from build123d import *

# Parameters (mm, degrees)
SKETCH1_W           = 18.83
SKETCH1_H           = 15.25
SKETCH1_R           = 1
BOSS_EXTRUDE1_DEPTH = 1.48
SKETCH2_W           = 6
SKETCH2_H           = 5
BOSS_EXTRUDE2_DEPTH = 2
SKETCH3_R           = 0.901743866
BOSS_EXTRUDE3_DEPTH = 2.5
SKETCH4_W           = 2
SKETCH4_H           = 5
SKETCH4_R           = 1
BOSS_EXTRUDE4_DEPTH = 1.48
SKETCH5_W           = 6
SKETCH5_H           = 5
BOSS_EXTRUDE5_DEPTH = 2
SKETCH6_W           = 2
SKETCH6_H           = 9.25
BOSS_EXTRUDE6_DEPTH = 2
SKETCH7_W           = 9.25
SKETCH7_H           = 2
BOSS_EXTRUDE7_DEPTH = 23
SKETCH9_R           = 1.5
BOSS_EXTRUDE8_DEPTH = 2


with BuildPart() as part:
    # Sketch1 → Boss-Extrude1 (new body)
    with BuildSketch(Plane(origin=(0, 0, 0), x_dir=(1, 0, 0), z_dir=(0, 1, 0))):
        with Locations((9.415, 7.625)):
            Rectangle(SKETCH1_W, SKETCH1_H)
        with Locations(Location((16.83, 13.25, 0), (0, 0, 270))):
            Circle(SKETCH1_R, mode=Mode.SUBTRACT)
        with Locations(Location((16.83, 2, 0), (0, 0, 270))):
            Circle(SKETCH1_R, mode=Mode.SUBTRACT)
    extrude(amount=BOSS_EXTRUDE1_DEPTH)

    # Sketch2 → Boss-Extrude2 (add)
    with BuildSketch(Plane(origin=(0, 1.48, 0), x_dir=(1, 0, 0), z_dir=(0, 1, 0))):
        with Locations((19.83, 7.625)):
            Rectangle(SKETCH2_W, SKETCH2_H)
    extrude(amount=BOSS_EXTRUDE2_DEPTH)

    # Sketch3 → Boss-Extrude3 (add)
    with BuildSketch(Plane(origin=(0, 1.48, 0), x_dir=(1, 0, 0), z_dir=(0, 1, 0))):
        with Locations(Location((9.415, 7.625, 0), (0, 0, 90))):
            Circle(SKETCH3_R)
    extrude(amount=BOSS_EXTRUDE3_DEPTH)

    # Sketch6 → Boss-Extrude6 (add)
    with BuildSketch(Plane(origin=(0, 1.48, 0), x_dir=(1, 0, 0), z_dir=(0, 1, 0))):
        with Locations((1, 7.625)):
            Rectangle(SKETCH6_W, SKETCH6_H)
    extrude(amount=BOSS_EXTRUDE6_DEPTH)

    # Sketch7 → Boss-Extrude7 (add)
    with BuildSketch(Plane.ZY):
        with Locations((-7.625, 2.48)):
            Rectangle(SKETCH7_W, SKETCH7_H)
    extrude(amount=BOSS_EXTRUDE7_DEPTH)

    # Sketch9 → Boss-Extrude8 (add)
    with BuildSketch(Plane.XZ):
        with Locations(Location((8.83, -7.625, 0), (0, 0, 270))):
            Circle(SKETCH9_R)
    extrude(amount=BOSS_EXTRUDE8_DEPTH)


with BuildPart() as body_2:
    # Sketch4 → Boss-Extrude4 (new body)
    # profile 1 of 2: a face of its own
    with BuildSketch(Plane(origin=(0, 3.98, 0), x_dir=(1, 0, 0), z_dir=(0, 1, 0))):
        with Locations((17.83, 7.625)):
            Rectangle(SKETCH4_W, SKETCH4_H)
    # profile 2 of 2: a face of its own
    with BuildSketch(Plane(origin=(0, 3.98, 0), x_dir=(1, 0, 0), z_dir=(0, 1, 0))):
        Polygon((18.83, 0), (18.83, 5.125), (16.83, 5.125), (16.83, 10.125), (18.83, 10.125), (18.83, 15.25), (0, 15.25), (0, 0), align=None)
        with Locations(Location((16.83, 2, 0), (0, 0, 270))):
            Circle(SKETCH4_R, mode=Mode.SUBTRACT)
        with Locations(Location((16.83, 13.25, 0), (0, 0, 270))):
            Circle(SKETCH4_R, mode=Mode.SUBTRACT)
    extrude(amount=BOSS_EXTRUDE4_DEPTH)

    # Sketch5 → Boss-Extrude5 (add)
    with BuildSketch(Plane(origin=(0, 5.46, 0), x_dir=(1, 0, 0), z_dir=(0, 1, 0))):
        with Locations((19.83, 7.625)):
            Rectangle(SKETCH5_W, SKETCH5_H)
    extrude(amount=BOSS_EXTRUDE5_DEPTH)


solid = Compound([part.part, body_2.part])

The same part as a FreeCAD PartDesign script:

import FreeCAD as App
import Part
import Sketcher
from FreeCAD import Vector
Q = App.Units.Quantity

doc = App.newDocument("Part")
params = doc.addObject("Spreadsheet::Sheet", "Params")
for row, (alias, value) in enumerate([
    ("sketch1_diameter", "2 mm"),
    ("sketch1_width", "18.83 mm"),
    ("sketch1_height", "15.25 mm"),
    ("pad1_length", "1.48 mm"),
    ("sketch2_width", "6 mm"),
    ("sketch2_height", "5 mm"),
    ("pad2_length", "2 mm"),
    ("pad3_length", "2.5 mm"),
    ("sketch4_width", "2 mm"),
    ("sketch4_height", "9.25 mm"),
    ("pad4_length", "2 mm"),
    ("sketch5_width", "2 mm"),
    ("sketch5_height", "9.25 mm"),
    ("pad5_length", "23 mm"),
    ("sketch6_diameter", "3 mm"),
    ("pad6_length", "2 mm"),
    ("sketch7_diameter", "2 mm"),
    ("sketch7_width", "18.83 mm"),
    ("sketch7_height", "15.25 mm"),
    ("pad7_length", "1.48 mm"),
    ("sketch8_width", "6 mm"),
    ("sketch8_height", "5 mm"),
    ("pad8_length", "2 mm"),
], start=1):
    params.set(f"A{row}", alias)
    params.set(f"B{row}", "=" + value)
    params.setAlias(f"B{row}", alias)

body = doc.addObject("PartDesign::Body", "Body")

sketch1 = body.newObject("Sketcher::SketchObject", "Sketch")
sketch1.AttachmentSupport = (doc.getObject("XZ_Plane"), [""])
sketch1.MapMode = "FlatFace"
sketch1.addGeometry([
    Part.LineSegment(Vector(0, -15.2, 0), Vector(0, 0, 0)),
    Part.LineSegment(Vector(0, 0, 0), Vector(18.8, 0, 0)),
    Part.LineSegment(Vector(18.8, 0, 0), Vector(18.8, -15.2, 0)),
    Part.LineSegment(Vector(18.8, -15.2, 0), Vector(0, -15.2, 0)),
    Part.Circle(Vector(16.8, -2, 0), Vector(0, 0, 1), 1),
    Part.Circle(Vector(16.8, -13.2, 0), Vector(0, 0, 1), 1),
], False)
sketch1.addConstraint([
    Sketcher.Constraint("Coincident", 0, 2, 1, 1),
    Sketcher.Constraint("Coincident", 1, 2, 2, 1),
    Sketcher.Constraint("Coincident", 2, 2, 3, 1),
    Sketcher.Constraint("Coincident", 3, 2, 0, 1),
    Sketcher.Constraint("Vertical", 0),
    Sketcher.Constraint("Horizontal", 1),
    Sketcher.Constraint("Vertical", 2),
    Sketcher.Constraint("Horizontal", 3),
    Sketcher.Constraint("Coincident", 0, 2, -1, 1),
    Sketcher.Constraint("Equal", 4, 5),
    Sketcher.Constraint("Vertical", 4, 3, 5, 3),
    Sketcher.Constraint("Diameter", 4, Q("2 mm")),
    Sketcher.Constraint("DistanceY", 4, 3, -1, 1, Q("2 mm")),
    Sketcher.Constraint("DistanceX", 4, 3, 1, 2, Q("2 mm")),
    Sketcher.Constraint("DistanceY", 2, 2, 5, 3, Q("2 mm")),
    Sketcher.Constraint("DistanceX", 1, 1, 1, 2, Q("18.83 mm")),
    Sketcher.Constraint("DistanceY", 0, 1, 0, 2, Q("15.25 mm")),
])
sketch1.setExpression("Constraints[11]", "Params.sketch1_diameter")
sketch1.setExpression("Constraints[15]", "Params.sketch1_width")
sketch1.setExpression("Constraints[16]", "Params.sketch1_height")
pad1 = body.newObject("PartDesign::Pad", "Pad")
pad1.Profile = sketch1
pad1.setExpression("Length", "Params.pad1_length")
pad1.Reversed = True

sketch2 = body.newObject("Sketcher::SketchObject", "Sketch001")
sketch2.AttachmentSupport = (doc.getObject("XZ_Plane"), [""])
sketch2.MapMode = "FlatFace"
sketch2.AttachmentOffset = App.Placement(Vector(0, 0, -1.48), App.Rotation())
sketch2.addGeometry([
    Part.LineSegment(Vector(17, -10, 0), Vector(17, -5, 0)),
    Part.LineSegment(Vector(17, -5, 0), Vector(23, -5, 0)),
    Part.LineSegment(Vector(23, -5, 0), Vector(23, -10, 0)),
    Part.LineSegment(Vector(23, -10, 0), Vector(17, -10, 0)),
], False)
sketch2.addConstraint([
    Sketcher.Constraint("Coincident", 0, 2, 1, 1),
    Sketcher.Constraint("Coincident", 1, 2, 2, 1),
    Sketcher.Constraint("Coincident", 2, 2, 3, 1),
    Sketcher.Constraint("Coincident", 3, 2, 0, 1),
    Sketcher.Constraint("Vertical", 0),
    Sketcher.Constraint("Horizontal", 1),
    Sketcher.Constraint("Vertical", 2),
    Sketcher.Constraint("Horizontal", 3),
    Sketcher.Constraint("DistanceX", 1, 1, 1, 2, Q("6 mm")),
    Sketcher.Constraint("DistanceY", 0, 1, 0, 2, Q("5 mm")),
    Sketcher.Constraint("DistanceX", -1, 1, 0, 2, Q("16.83 mm")),
    Sketcher.Constraint("DistanceY", 0, 2, -1, 1, Q("5.125 mm")),
])
sketch2.setExpression("Constraints[8]", "Params.sketch2_width")
sketch2.setExpression("Constraints[9]", "Params.sketch2_height")
pad2 = body.newObject("PartDesign::Pad", "Pad001")
pad2.Profile = sketch2
pad2.setExpression("Length", "Params.pad2_length")
pad2.Reversed = True

sketch3 = body.newObject("Sketcher::SketchObject", "Sketch002")
sketch3.AttachmentSupport = (doc.getObject("XZ_Plane"), [""])
sketch3.MapMode = "FlatFace"
sketch3.AttachmentOffset = App.Placement(Vector(0, 0, -1.48), App.Rotation())
sketch3.addGeometry(Part.Circle(Vector(9.4, -7.6, 0), Vector(0, 0, 1), 0.9), False)
sketch3.addConstraint([
    Sketcher.Constraint("Diameter", 0, Q("1.803488 mm")),
    Sketcher.Constraint("DistanceX", -1, 1, 0, 3, Q("9.415 mm")),
    Sketcher.Constraint("DistanceY", 0, 3, -1, 1, Q("7.625 mm")),
])
pad3 = body.newObject("PartDesign::Pad", "Pad002")
pad3.Profile = sketch3
pad3.setExpression("Length", "Params.pad3_length")
pad3.Reversed = True

sketch4 = body.newObject("Sketcher::SketchObject", "Sketch003")
sketch4.AttachmentSupport = (doc.getObject("XZ_Plane"), [""])
sketch4.MapMode = "FlatFace"
sketch4.AttachmentOffset = App.Placement(Vector(0, 0, -1.48), App.Rotation())
sketch4.addGeometry([
    Part.LineSegment(Vector(0, -12.2, 0), Vector(0, -3, 0)),
    Part.LineSegment(Vector(0, -3, 0), Vector(2, -3, 0)),
    Part.LineSegment(Vector(2, -3, 0), Vector(2, -12.2, 0)),
    Part.LineSegment(Vector(2, -12.2, 0), Vector(0, -12.2, 0)),
], False)
sketch4.addConstraint([
    Sketcher.Constraint("Coincident", 0, 2, 1, 1),
    Sketcher.Constraint("Coincident", 1, 2, 2, 1),
    Sketcher.Constraint("Coincident", 2, 2, 3, 1),
    Sketcher.Constraint("Coincident", 3, 2, 0, 1),
    Sketcher.Constraint("Vertical", 0),
    Sketcher.Constraint("Horizontal", 1),
    Sketcher.Constraint("Vertical", 2),
    Sketcher.Constraint("Horizontal", 3),
    Sketcher.Constraint("PointOnObject", 0, 2, -2),
    Sketcher.Constraint("DistanceX", 1, 1, 1, 2, Q("2 mm")),
    Sketcher.Constraint("DistanceY", 0, 2, -1, 1, Q("3 mm")),
    Sketcher.Constraint("DistanceY", 0, 1, 0, 2, Q("9.25 mm")),
])
sketch4.setExpression("Constraints[9]", "Params.sketch4_width")
sketch4.setExpression("Constraints[11]", "Params.sketch4_height")
pad4 = body.newObject("PartDesign::Pad", "Pad003")
pad4.Profile = sketch4
pad4.setExpression("Length", "Params.pad4_length")
pad4.Reversed = True

sketch5 = body.newObject("Sketcher::SketchObject", "Sketch004")
sketch5.AttachmentSupport = (doc.getObject("YZ_Plane"), [""])
sketch5.MapMode = "FlatFace"
sketch5.addGeometry([
    Part.LineSegment(Vector(3.5, -12.2, 0), Vector(1.5, -12.2, 0)),
    Part.LineSegment(Vector(1.5, -12.2, 0), Vector(1.5, -3, 0)),
    Part.LineSegment(Vector(1.5, -3, 0), Vector(3.5, -3, 0)),
    Part.LineSegment(Vector(3.5, -3, 0), Vector(3.5, -12.2, 0)),
], False)
sketch5.addConstraint([
    Sketcher.Constraint("Coincident", 0, 2, 1, 1),
    Sketcher.Constraint("Coincident", 1, 2, 2, 1),
    Sketcher.Constraint("Coincident", 2, 2, 3, 1),
    Sketcher.Constraint("Coincident", 3, 2, 0, 1),
    Sketcher.Constraint("Horizontal", 0),
    Sketcher.Constraint("Vertical", 1),
    Sketcher.Constraint("Horizontal", 2),
    Sketcher.Constraint("Vertical", 3),
    Sketcher.Constraint("DistanceX", 0, 2, 0, 1, Q("2 mm")),
    Sketcher.Constraint("DistanceY", 1, 2, -1, 1, Q("3 mm")),
    Sketcher.Constraint("DistanceY", 1, 1, 1, 2, Q("9.25 mm")),
    Sketcher.Constraint("DistanceX", -1, 1, 0, 2, Q("1.48 mm")),
])
sketch5.setExpression("Constraints[8]", "Params.sketch5_width")
sketch5.setExpression("Constraints[10]", "Params.sketch5_height")
pad5 = body.newObject("PartDesign::Pad", "Pad004")
pad5.Profile = sketch5
pad5.setExpression("Length", "Params.pad5_length")
pad5.Reversed = True

sketch6 = body.newObject("Sketcher::SketchObject", "Sketch005")
sketch6.AttachmentSupport = (doc.getObject("XZ_Plane"), [""])
sketch6.MapMode = "FlatFace"
sketch6.addGeometry(Part.Circle(Vector(8.8, -7.6, 0), Vector(0, 0, 1), 1.5), False)
sketch6.addConstraint([
    Sketcher.Constraint("Diameter", 0, Q("3 mm")),
    Sketcher.Constraint("DistanceX", -1, 1, 0, 3, Q("8.83 mm")),
    Sketcher.Constraint("DistanceY", 0, 3, -1, 1, Q("7.625 mm")),
])
sketch6.setExpression("Constraints[0]", "Params.sketch6_diameter")
pad6 = body.newObject("PartDesign::Pad", "Pad005")
pad6.Profile = sketch6
pad6.setExpression("Length", "Params.pad6_length")
body2 = doc.addObject("PartDesign::Body", "Body001")

sketch7 = body2.newObject("Sketcher::SketchObject", "Sketch006")
sketch7.AttachmentSupport = (doc.getObject("XZ_Plane001"), [""])
sketch7.MapMode = "FlatFace"
sketch7.AttachmentOffset = App.Placement(Vector(0, 0, -3.98), App.Rotation())
sketch7.addGeometry([
    Part.LineSegment(Vector(18.8, -15.2, 0), Vector(0, -15.2, 0)),
    Part.LineSegment(Vector(0, -15.2, 0), Vector(0, 0, 0)),
    Part.LineSegment(Vector(0, 0, 0), Vector(18.8, 0, 0)),
    Part.LineSegment(Vector(18.8, 0, 0), Vector(18.8, -15.2, 0)),
    Part.Circle(Vector(16.8, -2, 0), Vector(0, 0, 1), 1),
    Part.Circle(Vector(16.8, -13.2, 0), Vector(0, 0, 1), 1),
], False)
sketch7.addConstraint([
    Sketcher.Constraint("Coincident", 0, 2, 1, 1),
    Sketcher.Constraint("Coincident", 1, 2, 2, 1),
    Sketcher.Constraint("Coincident", 2, 2, 3, 1),
    Sketcher.Constraint("Coincident", 3, 2, 0, 1),
    Sketcher.Constraint("Horizontal", 0),
    Sketcher.Constraint("Vertical", 1),
    Sketcher.Constraint("Horizontal", 2),
    Sketcher.Constraint("Vertical", 3),
    Sketcher.Constraint("Coincident", 1, 2, -1, 1),
    Sketcher.Constraint("Equal", 4, 5),
    Sketcher.Constraint("Vertical", 4, 3, 5, 3),
    Sketcher.Constraint("Diameter", 4, Q("2 mm")),
    Sketcher.Constraint("DistanceY", 4, 3, -1, 1, Q("2 mm")),
    Sketcher.Constraint("DistanceY", 0, 2, 5, 3, Q("2 mm")),
    Sketcher.Constraint("DistanceX", 4, 3, 2, 2, Q("2 mm")),
    Sketcher.Constraint("DistanceX", 0, 2, 0, 1, Q("18.83 mm")),
    Sketcher.Constraint("DistanceY", 1, 1, 1, 2, Q("15.25 mm")),
])
sketch7.setExpression("Constraints[11]", "Params.sketch7_diameter")
sketch7.setExpression("Constraints[15]", "Params.sketch7_width")
sketch7.setExpression("Constraints[16]", "Params.sketch7_height")
pad7 = body2.newObject("PartDesign::Pad", "Pad006")
pad7.Profile = sketch7
pad7.setExpression("Length", "Params.pad7_length")
pad7.Reversed = True

sketch8 = body2.newObject("Sketcher::SketchObject", "Sketch007")
sketch8.AttachmentSupport = (doc.getObject("XZ_Plane001"), [""])
sketch8.MapMode = "FlatFace"
sketch8.AttachmentOffset = App.Placement(Vector(0, 0, -5.46), App.Rotation())
sketch8.addGeometry([
    Part.LineSegment(Vector(17, -10, 0), Vector(17, -5, 0)),
    Part.LineSegment(Vector(17, -5, 0), Vector(23, -5, 0)),
    Part.LineSegment(Vector(23, -5, 0), Vector(23, -10, 0)),
    Part.LineSegment(Vector(23, -10, 0), Vector(17, -10, 0)),
], False)
sketch8.addConstraint([
    Sketcher.Constraint("Coincident", 0, 2, 1, 1),
    Sketcher.Constraint("Coincident", 1, 2, 2, 1),
    Sketcher.Constraint("Coincident", 2, 2, 3, 1),
    Sketcher.Constraint("Coincident", 3, 2, 0, 1),
    Sketcher.Constraint("Vertical", 0),
    Sketcher.Constraint("Horizontal", 1),
    Sketcher.Constraint("Vertical", 2),
    Sketcher.Constraint("Horizontal", 3),
    Sketcher.Constraint("DistanceX", 1, 1, 1, 2, Q("6 mm")),
    Sketcher.Constraint("DistanceY", 0, 1, 0, 2, Q("5 mm")),
    Sketcher.Constraint("DistanceX", -1, 1, 0, 2, Q("16.83 mm")),
    Sketcher.Constraint("DistanceY", 0, 2, -1, 1, Q("5.125 mm")),
])
sketch8.setExpression("Constraints[8]", "Params.sketch8_width")
sketch8.setExpression("Constraints[9]", "Params.sketch8_height")
pad8 = body2.newObject("PartDesign::Pad", "Pad007")
pad8.Profile = sketch8
pad8.setExpression("Length", "Params.pad8_length")
pad8.Reversed = True

doc.recompute()
